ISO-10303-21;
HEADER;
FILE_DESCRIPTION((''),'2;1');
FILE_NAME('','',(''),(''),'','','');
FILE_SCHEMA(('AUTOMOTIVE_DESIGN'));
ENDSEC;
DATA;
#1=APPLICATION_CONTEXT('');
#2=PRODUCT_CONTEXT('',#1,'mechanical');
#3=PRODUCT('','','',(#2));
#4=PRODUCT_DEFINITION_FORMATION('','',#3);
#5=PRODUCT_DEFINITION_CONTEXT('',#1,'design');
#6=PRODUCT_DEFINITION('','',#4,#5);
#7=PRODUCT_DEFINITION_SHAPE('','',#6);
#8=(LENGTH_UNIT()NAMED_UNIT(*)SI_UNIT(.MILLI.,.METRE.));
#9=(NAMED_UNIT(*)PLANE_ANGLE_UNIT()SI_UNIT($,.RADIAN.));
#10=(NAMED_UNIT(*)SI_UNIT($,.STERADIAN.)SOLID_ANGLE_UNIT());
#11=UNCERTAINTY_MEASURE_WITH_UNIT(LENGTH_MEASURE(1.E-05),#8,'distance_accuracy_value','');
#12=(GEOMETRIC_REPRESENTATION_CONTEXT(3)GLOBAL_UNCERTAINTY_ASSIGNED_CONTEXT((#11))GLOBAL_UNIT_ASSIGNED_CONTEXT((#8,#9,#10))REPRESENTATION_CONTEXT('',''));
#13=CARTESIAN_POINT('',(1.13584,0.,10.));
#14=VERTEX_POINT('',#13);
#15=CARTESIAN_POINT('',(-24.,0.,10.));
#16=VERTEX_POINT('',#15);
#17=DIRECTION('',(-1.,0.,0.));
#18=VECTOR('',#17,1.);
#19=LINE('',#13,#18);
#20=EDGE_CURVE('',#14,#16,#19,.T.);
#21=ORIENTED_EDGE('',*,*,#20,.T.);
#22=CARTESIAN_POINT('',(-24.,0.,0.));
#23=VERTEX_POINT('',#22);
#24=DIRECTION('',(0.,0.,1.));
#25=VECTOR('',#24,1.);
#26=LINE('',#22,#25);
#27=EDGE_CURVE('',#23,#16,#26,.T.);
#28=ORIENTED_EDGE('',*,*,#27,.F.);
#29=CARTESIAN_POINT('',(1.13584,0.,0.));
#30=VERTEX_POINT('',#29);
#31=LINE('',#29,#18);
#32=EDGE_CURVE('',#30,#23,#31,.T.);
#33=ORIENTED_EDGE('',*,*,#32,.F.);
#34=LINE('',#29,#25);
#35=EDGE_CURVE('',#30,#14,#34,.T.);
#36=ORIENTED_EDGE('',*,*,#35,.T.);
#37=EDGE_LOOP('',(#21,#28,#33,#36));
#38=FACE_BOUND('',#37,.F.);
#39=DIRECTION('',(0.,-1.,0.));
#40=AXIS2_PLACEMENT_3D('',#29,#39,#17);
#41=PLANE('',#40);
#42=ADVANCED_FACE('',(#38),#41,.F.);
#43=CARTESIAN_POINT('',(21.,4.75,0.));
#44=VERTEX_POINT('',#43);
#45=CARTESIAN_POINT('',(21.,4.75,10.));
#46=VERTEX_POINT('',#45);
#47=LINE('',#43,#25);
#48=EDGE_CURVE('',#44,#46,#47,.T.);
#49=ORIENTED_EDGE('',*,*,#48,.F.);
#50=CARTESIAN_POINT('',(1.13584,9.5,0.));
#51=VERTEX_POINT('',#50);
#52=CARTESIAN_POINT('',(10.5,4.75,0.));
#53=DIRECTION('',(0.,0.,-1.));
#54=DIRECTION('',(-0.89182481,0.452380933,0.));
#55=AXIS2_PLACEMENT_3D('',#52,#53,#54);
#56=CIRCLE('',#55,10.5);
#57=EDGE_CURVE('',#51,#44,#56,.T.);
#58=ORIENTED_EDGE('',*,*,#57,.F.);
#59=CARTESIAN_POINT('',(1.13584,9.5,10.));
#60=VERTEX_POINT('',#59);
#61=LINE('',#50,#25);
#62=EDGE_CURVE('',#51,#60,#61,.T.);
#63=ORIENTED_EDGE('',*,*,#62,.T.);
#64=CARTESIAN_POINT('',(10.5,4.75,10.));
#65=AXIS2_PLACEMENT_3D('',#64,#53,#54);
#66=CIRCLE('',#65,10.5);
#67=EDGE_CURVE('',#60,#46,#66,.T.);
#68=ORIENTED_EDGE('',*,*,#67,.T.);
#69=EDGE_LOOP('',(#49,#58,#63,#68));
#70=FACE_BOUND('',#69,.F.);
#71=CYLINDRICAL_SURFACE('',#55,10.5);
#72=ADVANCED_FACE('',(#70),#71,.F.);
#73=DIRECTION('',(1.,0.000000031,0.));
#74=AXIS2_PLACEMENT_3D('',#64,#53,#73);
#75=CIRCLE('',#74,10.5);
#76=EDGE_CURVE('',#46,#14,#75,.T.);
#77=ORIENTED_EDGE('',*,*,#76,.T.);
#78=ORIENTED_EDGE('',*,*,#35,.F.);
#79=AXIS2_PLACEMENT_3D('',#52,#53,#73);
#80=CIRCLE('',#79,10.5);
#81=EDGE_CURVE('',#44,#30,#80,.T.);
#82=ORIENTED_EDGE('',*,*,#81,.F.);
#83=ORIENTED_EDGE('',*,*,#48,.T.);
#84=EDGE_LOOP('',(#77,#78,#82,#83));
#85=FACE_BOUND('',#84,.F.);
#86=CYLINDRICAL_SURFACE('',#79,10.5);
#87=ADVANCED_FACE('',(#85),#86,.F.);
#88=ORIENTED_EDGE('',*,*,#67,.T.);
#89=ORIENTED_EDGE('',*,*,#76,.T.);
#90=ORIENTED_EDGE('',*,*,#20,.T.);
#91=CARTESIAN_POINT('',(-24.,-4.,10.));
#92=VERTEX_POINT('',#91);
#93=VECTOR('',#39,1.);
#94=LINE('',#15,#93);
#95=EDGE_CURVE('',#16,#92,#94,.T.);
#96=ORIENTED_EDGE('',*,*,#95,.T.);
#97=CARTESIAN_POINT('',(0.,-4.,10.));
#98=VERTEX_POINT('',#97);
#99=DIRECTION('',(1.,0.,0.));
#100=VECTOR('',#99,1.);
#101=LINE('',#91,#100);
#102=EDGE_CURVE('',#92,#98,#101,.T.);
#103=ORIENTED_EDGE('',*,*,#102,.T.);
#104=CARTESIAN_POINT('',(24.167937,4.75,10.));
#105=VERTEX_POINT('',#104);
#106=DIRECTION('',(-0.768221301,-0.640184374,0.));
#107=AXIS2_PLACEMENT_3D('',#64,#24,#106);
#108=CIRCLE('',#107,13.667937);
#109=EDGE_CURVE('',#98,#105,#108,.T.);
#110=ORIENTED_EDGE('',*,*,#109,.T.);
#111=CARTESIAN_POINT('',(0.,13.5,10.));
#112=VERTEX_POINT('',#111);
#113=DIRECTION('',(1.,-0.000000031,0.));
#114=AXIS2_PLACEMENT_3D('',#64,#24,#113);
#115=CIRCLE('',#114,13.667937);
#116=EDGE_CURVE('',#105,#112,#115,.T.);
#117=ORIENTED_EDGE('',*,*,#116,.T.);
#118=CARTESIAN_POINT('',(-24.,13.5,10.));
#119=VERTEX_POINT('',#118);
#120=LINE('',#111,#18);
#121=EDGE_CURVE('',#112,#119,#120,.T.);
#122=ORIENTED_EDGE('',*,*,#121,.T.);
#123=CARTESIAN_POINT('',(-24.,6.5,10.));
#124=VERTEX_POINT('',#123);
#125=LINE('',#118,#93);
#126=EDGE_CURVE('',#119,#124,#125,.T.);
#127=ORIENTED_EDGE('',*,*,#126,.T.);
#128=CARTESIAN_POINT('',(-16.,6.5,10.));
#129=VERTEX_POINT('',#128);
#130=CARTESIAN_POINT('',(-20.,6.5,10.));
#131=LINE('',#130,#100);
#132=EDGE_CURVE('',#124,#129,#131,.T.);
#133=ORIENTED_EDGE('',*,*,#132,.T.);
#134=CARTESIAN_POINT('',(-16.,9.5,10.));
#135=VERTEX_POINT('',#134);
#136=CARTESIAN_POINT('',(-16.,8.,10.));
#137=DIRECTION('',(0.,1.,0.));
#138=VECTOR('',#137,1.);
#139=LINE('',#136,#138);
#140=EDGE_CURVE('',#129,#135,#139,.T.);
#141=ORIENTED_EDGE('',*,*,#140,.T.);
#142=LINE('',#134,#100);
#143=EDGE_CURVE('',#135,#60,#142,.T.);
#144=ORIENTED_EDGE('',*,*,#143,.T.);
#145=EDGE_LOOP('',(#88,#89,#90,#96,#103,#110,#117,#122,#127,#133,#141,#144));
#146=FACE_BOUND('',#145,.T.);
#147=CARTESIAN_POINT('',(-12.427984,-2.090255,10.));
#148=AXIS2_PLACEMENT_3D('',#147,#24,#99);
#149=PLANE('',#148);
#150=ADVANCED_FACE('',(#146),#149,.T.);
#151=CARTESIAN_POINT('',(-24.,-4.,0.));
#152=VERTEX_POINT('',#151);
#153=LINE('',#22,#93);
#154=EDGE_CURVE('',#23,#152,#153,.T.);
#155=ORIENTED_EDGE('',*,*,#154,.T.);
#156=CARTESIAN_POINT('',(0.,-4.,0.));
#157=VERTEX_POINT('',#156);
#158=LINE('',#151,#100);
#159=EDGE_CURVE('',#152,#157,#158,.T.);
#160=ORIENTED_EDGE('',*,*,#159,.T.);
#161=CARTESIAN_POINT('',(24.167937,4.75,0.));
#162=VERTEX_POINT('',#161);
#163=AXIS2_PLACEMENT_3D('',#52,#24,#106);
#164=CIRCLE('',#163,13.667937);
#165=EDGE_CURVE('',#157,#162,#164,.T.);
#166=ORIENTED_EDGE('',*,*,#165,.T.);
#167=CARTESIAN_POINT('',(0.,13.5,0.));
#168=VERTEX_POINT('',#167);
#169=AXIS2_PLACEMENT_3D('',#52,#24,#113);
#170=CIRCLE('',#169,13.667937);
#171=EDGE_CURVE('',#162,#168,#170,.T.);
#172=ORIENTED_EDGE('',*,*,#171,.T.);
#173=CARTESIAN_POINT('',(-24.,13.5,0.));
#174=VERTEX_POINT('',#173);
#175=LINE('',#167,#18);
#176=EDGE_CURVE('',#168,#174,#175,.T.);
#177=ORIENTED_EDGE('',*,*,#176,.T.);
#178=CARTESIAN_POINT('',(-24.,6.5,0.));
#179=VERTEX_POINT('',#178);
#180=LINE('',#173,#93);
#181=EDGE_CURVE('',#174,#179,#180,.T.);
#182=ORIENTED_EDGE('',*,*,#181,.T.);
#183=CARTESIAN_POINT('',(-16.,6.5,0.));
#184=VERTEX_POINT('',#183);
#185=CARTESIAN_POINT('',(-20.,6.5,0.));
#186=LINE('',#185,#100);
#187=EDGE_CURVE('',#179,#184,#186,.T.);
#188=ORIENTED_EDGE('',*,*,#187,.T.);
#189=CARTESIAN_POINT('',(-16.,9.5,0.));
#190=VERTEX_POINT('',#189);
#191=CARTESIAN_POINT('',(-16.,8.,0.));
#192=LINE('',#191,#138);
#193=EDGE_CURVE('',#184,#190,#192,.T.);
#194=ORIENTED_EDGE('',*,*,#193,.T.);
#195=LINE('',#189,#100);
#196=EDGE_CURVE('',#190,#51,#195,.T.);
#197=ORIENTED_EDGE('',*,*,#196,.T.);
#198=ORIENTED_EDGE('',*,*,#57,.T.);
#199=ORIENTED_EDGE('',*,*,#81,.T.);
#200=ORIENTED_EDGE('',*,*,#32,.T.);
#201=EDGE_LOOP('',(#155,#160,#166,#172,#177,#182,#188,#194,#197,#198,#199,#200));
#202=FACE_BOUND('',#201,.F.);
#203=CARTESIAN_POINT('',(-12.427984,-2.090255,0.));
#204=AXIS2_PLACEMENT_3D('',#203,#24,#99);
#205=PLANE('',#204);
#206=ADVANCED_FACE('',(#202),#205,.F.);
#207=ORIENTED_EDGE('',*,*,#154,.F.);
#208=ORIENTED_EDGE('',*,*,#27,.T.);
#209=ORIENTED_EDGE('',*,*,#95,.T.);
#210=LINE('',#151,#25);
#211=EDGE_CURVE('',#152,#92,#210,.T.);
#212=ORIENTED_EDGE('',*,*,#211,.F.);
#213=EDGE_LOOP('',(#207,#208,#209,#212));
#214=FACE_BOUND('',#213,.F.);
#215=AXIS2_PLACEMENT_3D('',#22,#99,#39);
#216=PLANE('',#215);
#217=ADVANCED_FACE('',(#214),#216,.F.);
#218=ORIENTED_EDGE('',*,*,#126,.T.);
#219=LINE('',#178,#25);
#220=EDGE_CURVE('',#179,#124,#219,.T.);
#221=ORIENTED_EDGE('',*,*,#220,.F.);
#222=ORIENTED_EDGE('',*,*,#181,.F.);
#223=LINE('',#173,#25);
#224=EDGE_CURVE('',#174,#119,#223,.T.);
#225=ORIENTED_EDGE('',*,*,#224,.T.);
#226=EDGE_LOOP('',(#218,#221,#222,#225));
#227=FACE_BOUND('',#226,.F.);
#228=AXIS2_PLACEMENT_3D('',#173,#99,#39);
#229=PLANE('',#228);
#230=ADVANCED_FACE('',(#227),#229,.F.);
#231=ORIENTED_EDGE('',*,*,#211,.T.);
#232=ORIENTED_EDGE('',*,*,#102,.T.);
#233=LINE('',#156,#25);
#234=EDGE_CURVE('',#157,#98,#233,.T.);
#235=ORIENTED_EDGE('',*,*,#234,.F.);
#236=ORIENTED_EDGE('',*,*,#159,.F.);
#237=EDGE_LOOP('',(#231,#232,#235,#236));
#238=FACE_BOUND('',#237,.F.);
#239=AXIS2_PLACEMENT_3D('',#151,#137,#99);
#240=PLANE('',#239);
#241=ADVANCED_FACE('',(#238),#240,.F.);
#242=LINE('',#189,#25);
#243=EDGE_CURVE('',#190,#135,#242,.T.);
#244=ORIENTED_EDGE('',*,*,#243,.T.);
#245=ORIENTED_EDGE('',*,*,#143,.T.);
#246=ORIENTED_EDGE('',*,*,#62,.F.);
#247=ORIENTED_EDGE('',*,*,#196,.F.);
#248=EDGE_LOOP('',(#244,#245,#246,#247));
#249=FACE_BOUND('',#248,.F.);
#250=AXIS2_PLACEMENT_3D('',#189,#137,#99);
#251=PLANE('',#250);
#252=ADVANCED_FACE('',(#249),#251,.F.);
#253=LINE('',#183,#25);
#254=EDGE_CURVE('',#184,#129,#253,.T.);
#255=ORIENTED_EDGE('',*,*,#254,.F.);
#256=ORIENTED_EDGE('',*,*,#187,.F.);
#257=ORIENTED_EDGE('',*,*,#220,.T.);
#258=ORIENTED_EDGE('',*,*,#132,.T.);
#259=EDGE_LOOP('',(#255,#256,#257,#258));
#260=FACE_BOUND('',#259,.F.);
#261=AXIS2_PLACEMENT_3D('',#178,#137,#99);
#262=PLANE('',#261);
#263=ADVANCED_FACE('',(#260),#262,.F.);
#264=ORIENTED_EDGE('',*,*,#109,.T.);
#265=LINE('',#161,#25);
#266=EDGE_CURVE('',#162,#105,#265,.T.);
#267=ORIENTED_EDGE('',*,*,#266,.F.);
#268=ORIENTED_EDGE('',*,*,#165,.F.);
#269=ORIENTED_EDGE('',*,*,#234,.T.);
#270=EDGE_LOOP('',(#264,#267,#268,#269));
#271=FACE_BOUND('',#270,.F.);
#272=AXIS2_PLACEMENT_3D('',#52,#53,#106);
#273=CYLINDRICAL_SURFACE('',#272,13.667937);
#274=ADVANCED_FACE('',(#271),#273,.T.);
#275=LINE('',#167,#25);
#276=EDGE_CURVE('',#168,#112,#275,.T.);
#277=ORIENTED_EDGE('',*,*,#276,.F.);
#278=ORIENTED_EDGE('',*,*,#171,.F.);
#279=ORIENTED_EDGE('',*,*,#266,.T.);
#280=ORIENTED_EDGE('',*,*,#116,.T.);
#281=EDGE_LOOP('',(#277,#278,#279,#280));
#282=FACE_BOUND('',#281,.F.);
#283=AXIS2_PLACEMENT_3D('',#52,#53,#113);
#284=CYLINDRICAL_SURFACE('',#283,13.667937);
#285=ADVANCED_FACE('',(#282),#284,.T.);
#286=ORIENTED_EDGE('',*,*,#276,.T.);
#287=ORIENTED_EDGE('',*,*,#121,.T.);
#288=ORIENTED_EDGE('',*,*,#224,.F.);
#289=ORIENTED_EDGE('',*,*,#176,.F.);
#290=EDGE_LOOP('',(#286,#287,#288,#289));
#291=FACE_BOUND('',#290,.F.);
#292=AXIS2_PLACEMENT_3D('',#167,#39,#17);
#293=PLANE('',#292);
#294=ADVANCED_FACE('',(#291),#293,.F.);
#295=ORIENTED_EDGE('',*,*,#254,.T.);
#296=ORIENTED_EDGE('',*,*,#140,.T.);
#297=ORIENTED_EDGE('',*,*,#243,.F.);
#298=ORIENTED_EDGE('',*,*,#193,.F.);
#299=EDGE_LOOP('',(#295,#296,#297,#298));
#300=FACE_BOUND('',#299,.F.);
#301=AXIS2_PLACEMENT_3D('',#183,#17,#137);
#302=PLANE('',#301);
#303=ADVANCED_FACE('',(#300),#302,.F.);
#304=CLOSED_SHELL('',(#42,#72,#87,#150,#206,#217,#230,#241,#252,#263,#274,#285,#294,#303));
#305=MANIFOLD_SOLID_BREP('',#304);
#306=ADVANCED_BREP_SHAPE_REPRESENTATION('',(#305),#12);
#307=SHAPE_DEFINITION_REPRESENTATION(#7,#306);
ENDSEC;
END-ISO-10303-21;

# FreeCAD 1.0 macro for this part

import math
import FreeCAD as App
import Part
import Sketcher
from FreeCAD import Vector
Q = App.Units.Quantity

doc = App.newDocument("Part")
body = doc.addObject("PartDesign::Body", "Body")

# Sketch on XY plane
sketch1 = body.newObject("Sketcher::SketchObject", "Sketch")
sketch1.AttachmentSupport = (doc.getObject("XY_Plane"), [""])
sketch1.MapMode = "FlatFace"
sketch1.addGeometry([
    Part.LineSegment(Vector(-24, 0, 0), Vector(-24, -4, 0)),  # 0
    Part.LineSegment(Vector(-24, -4, 0), Vector(0, -4, 0)),  # 1
    Part.ArcOfCircle(Part.Circle(Vector(10.5, 4.7, 0), Vector(0, 0, 1), 13.7), math.radians(-140), math.radians(0)),  # 2
    Part.ArcOfCircle(Part.Circle(Vector(10.5, 4.8, 0), Vector(0, 0, 1), 13.7), math.radians(0), math.radians(140)),  # 3
    Part.LineSegment(Vector(0, 13.5, 0), Vector(-24, 13.5, 0)),  # 4
    Part.LineSegment(Vector(-24, 13.5, 0), Vector(-24, 6.5, 0)),  # 5
    Part.LineSegment(Vector(-24, 6.5, 0), Vector(-16, 6.5, 0)),  # 6
    Part.LineSegment(Vector(-16, 6.5, 0), Vector(-16, 9.5, 0)),  # 7
    Part.LineSegment(Vector(-16, 9.5, 0), Vector(1.1, 9.5, 0)),  # 8
    Part.ArcOfCircle(Part.Circle(Vector(10.5, 4.8, 0), Vector(0, 0, 1), 10.5), math.radians(0), math.radians(153)),  # 9
    Part.ArcOfCircle(Part.Circle(Vector(10.5, 4.7, 0), Vector(0, 0, 1), 10.5), math.radians(-153), math.radians(0)),  # 10
    Part.LineSegment(Vector(1.1, 0, 0), Vector(-24, 0, 0)),  # 11
], False)
sketch1.addConstraint([
    Sketcher.Constraint("Coincident", 0, 2, 1, 1),
    Sketcher.Constraint("Coincident", 1, 2, 2, 1),
    Sketcher.Constraint("Tangent", 2, 2, 3, 1),
    Sketcher.Constraint("Coincident", 3, 2, 4, 1),
    Sketcher.Constraint("Coincident", 4, 2, 5, 1),
    Sketcher.Constraint("Coincident", 5, 2, 6, 1),
    Sketcher.Constraint("Coincident", 6, 2, 7, 1),
    Sketcher.Constraint("Coincident", 7, 2, 8, 1),
    Sketcher.Constraint("Coincident", 8, 2, 9, 2),
    Sketcher.Constraint("Tangent", 9, 1, 10, 2),
    Sketcher.Constraint("Coincident", 10, 1, 11, 1),
    Sketcher.Constraint("Coincident", 11, 2, 0, 1),
    Sketcher.Constraint("Vertical", 0),
    Sketcher.Constraint("Horizontal", 1),
    Sketcher.Constraint("Horizontal", 4),
    Sketcher.Constraint("Vertical", 5),
    Sketcher.Constraint("Horizontal", 6),
    Sketcher.Constraint("Vertical", 7),
    Sketcher.Constraint("Horizontal", 8),
    Sketcher.Constraint("Horizontal", 11),
    Sketcher.Constraint("Coincident", 9, 3, 2, 3),
    Sketcher.Constraint("Equal", 2, 3),
    Sketcher.Constraint("Equal", 9, 10),
    Sketcher.Constraint("PointOnObject", 1, 2, -2),
    Sketcher.Constraint("PointOnObject", 3, 2, -2),
    Sketcher.Constraint("PointOnObject", 10, 1, -1),
    Sketcher.Constraint("Horizontal", 10, 3, 2, 2),
    Sketcher.Constraint("Horizontal", 2, 2, 9, 1),
    Sketcher.Constraint("Vertical", 0, 2, 4, 2),
    Sketcher.Constraint("Vertical", 8, 2, 10, 1),
    Sketcher.Constraint("Radius", 9, Q("10.5 mm")),
    Sketcher.Constraint("DistanceX", 1, 1, 1, 2, Q("24 mm")),
    Sketcher.Constraint("DistanceX", 6, 1, 6, 2, Q("8 mm")),
    Sketcher.Constraint("DistanceY", 0, 2, 0, 1, Q("4 mm")),
    Sketcher.Constraint("DistanceY", 5, 2, 5, 1, Q("7 mm")),
    Sketcher.Constraint("DistanceX", -1, 1, 9, 1, Q("21 mm")),
    Sketcher.Constraint("DistanceY", -1, 1, 3, 2, Q("13.5 mm")),
])
pad1 = body.newObject("PartDesign::Pad", "Pad")
pad1.Profile = sketch1
pad1.Length = 10

doc.recompute()
